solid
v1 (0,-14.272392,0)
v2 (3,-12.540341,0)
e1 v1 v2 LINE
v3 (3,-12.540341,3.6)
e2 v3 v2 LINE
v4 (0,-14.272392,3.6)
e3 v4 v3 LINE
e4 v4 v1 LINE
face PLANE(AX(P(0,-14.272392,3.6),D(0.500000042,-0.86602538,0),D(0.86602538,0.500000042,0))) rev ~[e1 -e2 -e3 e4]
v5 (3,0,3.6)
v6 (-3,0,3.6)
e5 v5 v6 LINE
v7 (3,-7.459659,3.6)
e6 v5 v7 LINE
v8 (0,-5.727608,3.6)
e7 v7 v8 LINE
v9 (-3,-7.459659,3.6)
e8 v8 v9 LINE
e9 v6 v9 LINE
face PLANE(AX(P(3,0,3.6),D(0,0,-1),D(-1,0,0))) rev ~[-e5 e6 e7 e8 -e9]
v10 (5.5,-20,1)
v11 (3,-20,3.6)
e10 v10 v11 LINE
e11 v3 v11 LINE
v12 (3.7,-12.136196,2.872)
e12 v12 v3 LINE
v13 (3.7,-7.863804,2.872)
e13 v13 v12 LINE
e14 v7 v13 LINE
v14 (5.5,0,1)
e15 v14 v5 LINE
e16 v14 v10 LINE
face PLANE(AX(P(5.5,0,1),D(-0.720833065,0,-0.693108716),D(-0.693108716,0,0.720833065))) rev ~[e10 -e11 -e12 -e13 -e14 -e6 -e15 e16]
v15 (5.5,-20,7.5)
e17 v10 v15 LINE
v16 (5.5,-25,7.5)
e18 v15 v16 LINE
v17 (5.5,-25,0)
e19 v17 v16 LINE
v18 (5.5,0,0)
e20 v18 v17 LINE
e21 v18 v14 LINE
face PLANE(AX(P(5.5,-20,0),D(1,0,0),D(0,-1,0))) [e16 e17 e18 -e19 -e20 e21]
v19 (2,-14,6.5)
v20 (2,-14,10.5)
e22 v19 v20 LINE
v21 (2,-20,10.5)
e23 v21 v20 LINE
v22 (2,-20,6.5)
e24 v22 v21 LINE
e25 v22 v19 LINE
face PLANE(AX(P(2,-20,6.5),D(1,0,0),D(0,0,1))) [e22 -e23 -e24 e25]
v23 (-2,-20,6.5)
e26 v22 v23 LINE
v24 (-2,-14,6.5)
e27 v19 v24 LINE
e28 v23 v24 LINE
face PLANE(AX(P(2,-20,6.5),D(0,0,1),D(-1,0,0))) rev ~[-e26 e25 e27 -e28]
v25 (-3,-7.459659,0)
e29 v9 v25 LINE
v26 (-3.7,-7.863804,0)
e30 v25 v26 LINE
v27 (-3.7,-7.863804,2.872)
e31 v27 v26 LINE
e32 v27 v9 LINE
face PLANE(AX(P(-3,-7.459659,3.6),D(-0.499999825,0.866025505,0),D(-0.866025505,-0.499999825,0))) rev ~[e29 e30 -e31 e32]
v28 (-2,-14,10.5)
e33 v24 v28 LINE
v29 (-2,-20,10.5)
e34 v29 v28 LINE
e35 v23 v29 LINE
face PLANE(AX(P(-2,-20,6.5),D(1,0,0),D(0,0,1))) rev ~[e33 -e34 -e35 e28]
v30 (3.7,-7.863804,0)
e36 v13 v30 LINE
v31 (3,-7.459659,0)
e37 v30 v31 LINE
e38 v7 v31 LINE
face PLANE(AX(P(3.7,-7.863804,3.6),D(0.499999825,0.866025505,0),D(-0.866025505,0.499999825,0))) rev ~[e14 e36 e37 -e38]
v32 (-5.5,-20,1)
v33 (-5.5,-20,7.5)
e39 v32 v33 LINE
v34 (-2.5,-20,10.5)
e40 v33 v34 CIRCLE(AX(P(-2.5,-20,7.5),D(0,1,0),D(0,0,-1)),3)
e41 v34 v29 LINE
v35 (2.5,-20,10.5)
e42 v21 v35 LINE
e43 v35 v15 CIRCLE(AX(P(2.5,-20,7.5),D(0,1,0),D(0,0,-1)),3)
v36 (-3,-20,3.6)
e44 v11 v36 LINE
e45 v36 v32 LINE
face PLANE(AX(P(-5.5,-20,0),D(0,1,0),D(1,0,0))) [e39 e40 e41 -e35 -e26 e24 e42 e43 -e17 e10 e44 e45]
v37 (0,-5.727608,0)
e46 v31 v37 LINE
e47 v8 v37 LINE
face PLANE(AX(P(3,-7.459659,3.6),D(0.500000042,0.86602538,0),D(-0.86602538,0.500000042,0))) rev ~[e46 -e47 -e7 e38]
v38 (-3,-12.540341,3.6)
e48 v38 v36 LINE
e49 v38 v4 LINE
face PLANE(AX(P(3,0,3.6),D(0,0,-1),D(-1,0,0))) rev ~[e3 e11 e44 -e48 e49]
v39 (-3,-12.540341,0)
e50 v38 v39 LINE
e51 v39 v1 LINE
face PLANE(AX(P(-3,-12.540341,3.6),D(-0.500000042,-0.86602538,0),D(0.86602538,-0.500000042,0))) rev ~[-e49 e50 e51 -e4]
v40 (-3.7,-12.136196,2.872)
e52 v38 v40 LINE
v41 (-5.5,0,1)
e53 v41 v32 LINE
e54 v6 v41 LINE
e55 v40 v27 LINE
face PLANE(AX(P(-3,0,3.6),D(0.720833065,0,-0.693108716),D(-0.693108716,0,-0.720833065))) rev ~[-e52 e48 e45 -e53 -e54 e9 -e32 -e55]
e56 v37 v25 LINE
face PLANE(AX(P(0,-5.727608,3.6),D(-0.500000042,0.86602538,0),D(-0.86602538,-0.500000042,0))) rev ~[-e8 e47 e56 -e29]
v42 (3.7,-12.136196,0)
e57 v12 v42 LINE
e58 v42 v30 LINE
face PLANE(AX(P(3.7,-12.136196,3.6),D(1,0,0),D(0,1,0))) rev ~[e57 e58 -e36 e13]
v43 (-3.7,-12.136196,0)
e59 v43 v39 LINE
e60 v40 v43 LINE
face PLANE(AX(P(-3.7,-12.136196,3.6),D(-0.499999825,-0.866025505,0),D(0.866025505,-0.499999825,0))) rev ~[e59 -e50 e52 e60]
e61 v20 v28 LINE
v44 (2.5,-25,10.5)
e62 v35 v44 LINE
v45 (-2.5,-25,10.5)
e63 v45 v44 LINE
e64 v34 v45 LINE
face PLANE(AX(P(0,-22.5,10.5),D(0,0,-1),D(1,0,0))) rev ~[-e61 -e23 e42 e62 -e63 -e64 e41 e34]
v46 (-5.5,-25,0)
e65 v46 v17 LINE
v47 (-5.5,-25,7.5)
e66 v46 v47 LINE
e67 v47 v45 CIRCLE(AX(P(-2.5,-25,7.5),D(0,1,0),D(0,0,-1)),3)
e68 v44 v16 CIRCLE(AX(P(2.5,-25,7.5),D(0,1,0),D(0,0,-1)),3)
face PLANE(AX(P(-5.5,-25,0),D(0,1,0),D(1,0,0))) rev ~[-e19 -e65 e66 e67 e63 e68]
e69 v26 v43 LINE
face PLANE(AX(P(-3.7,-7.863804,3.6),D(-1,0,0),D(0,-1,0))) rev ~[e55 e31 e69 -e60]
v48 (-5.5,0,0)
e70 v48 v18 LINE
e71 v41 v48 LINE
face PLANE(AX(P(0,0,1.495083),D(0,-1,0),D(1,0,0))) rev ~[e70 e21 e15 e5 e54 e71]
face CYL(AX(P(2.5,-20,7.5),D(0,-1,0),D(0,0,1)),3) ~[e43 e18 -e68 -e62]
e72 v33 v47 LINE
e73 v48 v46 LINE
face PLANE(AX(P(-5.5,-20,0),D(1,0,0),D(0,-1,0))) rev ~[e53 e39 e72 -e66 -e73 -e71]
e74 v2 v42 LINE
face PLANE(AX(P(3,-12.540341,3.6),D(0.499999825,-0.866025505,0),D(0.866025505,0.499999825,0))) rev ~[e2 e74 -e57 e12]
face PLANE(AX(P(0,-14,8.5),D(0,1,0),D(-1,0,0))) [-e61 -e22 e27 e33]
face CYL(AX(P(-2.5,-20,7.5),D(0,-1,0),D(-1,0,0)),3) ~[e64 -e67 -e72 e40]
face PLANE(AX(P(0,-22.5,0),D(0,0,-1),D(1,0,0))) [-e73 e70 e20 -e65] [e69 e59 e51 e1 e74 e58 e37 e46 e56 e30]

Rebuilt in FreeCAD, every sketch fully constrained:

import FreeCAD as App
import Part
import Sketcher

V = App.Vector
Q = App.Units.Quantity


def edges_at(feature, points):
    """Names of the edges that pass closest to the given points."""
    edges = feature.Shape.Edges
    near = lambda p: min(range(len(edges)), key=lambda i: edges[i].distToShape(Part.Vertex(*p))[0])
    return sorted({f"Edge{near(p) + 1}" for p in points})

doc = App.newDocument("Part")
params = doc.addObject("Spreadsheet::Sheet", "Params")
for row, (alias, value) in enumerate([
    ("sketch1_width", "11 mm"),
    ("sketch1_width2", "6 mm"),
    ("sketch1_height", "1 mm"),
    ("pad1_length", "20 mm"),
    ("sketch3_width", "11 mm"),
    ("sketch3_height", "5 mm"),
    ("pad2_length", "10.5 mm"),
    ("sketch4_width", "4 mm"),
    ("pad3_length", "6 mm"),
    ("fillet_radius", "3 mm"),
], start=1):
    params.set(f"A{row}", alias)
    params.set(f"B{row}", "=" + value)
    params.setAlias(f"B{row}", alias)

body = doc.addObject("PartDesign::Body", "Body")

# Sketch on XZ plane
sketch1 = body.newObject("Sketcher::SketchObject", "Sketch")
sketch1.AttachmentSupport = (doc.getObject("XZ_Plane"), [""])
sketch1.MapMode = "FlatFace"
sketch1.addGeometry([
    Part.LineSegment(V(-5.5, 0, 0), V(5.5, 0, 0)),  # 0
    Part.LineSegment(V(5.5, 0, 0), V(5.5, 1, 0)),  # 1
    Part.LineSegment(V(5.5, 1, 0), V(3, 3.6, 0)),  # 2
    Part.LineSegment(V(3, 3.6, 0), V(-3, 3.6, 0)),  # 3
    Part.LineSegment(V(-3, 3.6, 0), V(-5.5, 1, 0)),  # 4
    Part.LineSegment(V(-5.5, 1, 0), V(-5.5, 0, 0)),  # 5
], False)
sketch1.addConstraint([
    Sketcher.Constraint("Coincident", 0, 2, 1, 1),
    Sketcher.Constraint("Coincident", 1, 2, 2, 1),
    Sketcher.Constraint("Coincident", 2, 2, 3, 1),
    Sketcher.Constraint("Coincident", 3, 2, 4, 1),
    Sketcher.Constraint("Coincident", 4, 2, 5, 1),
    Sketcher.Constraint("Coincident", 5, 2, 0, 1),
    Sketcher.Constraint("Horizontal", 0),
    Sketcher.Constraint("Vertical", 1),
    Sketcher.Constraint("Horizontal", 3),
    Sketcher.Constraint("Vertical", 5),
    Sketcher.Constraint("Symmetric", 0, 2, 5, 2, -1, 1),
    Sketcher.Constraint("Horizontal", 1, 2, 4, 2),
    Sketcher.Constraint("Equal", 2, 4),
    Sketcher.Constraint("DistanceX", 0, 1, 0, 2, 11.0),
    Sketcher.Constraint("DistanceX", 3, 2, 3, 1, 6.0),
    Sketcher.Constraint("DistanceY", 1, 1, 1, 2, 1.0),
    Sketcher.Constraint("DistanceY", -1, 1, 2, 2, 3.6),
])
sketch1.setExpression("Constraints[13]", "Params.sketch1_width")
sketch1.setExpression("Constraints[14]", "Params.sketch1_width2")
sketch1.setExpression("Constraints[15]", "Params.sketch1_height")
pad1 = body.newObject("PartDesign::Pad", "Pad")
pad1.Profile = sketch1
pad1.setExpression("Length", "Params.pad1_length")

# Sketch on XY plane
sketch2 = body.newObject("Sketcher::SketchObject", "Sketch001")
sketch2.AttachmentSupport = (doc.getObject("XY_Plane"), [""])
sketch2.MapMode = "FlatFace"
sketch2.AttachmentOffset = App.Placement(V(0, 0, 3.6), App.Rotation())
sketch2.addGeometry([
    Part.LineSegment(V(3, -7.5, 0), V(0, -5.7, 0)),  # 0
    Part.LineSegment(V(0, -5.7, 0), V(-3, -7.5, 0)),  # 1
    Part.LineSegment(V(-3, -7.5, 0), V(-3.7, -7.9, 0)),  # 2
    Part.LineSegment(V(-3.7, -7.9, 0), V(-3.7, -12.1, 0)),  # 3
    Part.LineSegment(V(-3.7, -12.1, 0), V(-3, -12.5, 0)),  # 4
    Part.LineSegment(V(-3, -12.5, 0), V(0, -14.3, 0)),  # 5
    Part.LineSegment(V(0, -14.3, 0), V(3, -12.5, 0)),  # 6
    Part.LineSegment(V(3, -12.5, 0), V(3.7, -12.1, 0)),  # 7
    Part.LineSegment(V(3.7, -12.1, 0), V(3.7, -7.9, 0)),  # 8
    Part.LineSegment(V(3.7, -7.9, 0), V(3, -7.5, 0)),  # 9
], False)
sketch2.addConstraint([
    Sketcher.Constraint("Coincident", 0, 2, 1, 1),
    Sketcher.Constraint("Coincident", 1, 2, 2, 1),
    Sketcher.Constraint("Coincident", 2, 2, 3, 1),
    Sketcher.Constraint("Coincident", 3, 2, 4, 1),
    Sketcher.Constraint("Coincident", 4, 2, 5, 1),
    Sketcher.Constraint("Coincident", 5, 2, 6, 1),
    Sketcher.Constraint("Coincident", 6, 2, 7, 1),
    Sketcher.Constraint("Coincident", 7, 2, 8, 1),
    Sketcher.Constraint("Coincident", 8, 2, 9, 1),
    Sketcher.Constraint("Coincident", 9, 2, 0, 1),
    Sketcher.Constraint("Vertical", 3),
    Sketcher.Constraint("Vertical", 8),
    Sketcher.Constraint("Symmetric", 4, 2, 6, 2, -2),
    Sketcher.Constraint("Symmetric", 3, 2, 7, 2, -2),
    Sketcher.Constraint("Symmetric", 1, 2, 9, 2, -2),
    Sketcher.Constraint("PointOnObject", 0, 2, -2),
    Sketcher.Constraint("PointOnObject", 5, 2, -2),
    Sketcher.Constraint("Parallel", 1, 2),
    Sketcher.Constraint("Parallel", 0, 4),
    Sketcher.Constraint("Parallel", 4, 5),
    Sketcher.Constraint("Parallel", 5, 9),
    Sketcher.Constraint("Vertical", 1, 2, 4, 2),
    Sketcher.Constraint("Angle", 0, Q("149.999997 deg")),
    Sketcher.Constraint("DistanceX", 1, 2, -1, 1, 3.0),
    Sketcher.Constraint("DistanceX", 2, 2, -1, 1, 3.7),
    Sketcher.Constraint("DistanceY", 3, 2, 3, 1, 4.272392),
    Sketcher.Constraint("DistanceY", 1, 2, -1, 1, 7.459659),
])
pocket1 = body.newObject("PartDesign::Pocket", "Pocket")
pocket1.Profile = sketch2
pocket1.Type = "ThroughAll"

# Sketch on XY plane
sketch3 = body.newObject("Sketcher::SketchObject", "Sketch002")
sketch3.AttachmentSupport = (doc.getObject("XY_Plane"), [""])
sketch3.MapMode = "FlatFace"
sketch3.addGeometry([
    Part.LineSegment(V(-6, -25, 0), V(-6, -20, 0)),
    Part.LineSegment(V(-6, -20, 0), V(6, -20, 0)),
    Part.LineSegment(V(6, -20, 0), V(6, -25, 0)),
    Part.LineSegment(V(6, -25, 0), V(-6, -25, 0)),
], False)
sketch3.addConstraint([
    Sketcher.Constraint("Coincident", 0, 2, 1, 1),
    Sketcher.Constraint("Coincident", 1, 2, 2, 1),
    Sketcher.Constraint("Coincident", 2, 2, 3, 1),
    Sketcher.Constraint("Coincident", 3, 2, 0, 1),
    Sketcher.Constraint("Vertical", 0),
    Sketcher.Constraint("Horizontal", 1),
    Sketcher.Constraint("Vertical", 2),
    Sketcher.Constraint("Horizontal", 3),
    Sketcher.Constraint("DistanceX", 1, 1, 1, 2, 11.0),
    Sketcher.Constraint("DistanceY", 0, 1, 0, 2, 5.0),
    Sketcher.Constraint("DistanceY", 0, 2, -1, 1, 20.0),
    Sketcher.Constraint("DistanceX", 0, 2, -1, 1, 5.5),
])
sketch3.setExpression("Constraints[8]", "Params.sketch3_width")
sketch3.setExpression("Constraints[9]", "Params.sketch3_height")
pad2 = body.newObject("PartDesign::Pad", "Pad001")
pad2.Profile = sketch3
pad2.setExpression("Length", "Params.pad2_length")

# Sketch on XZ plane
sketch4 = body.newObject("Sketcher::SketchObject", "Sketch003")
sketch4.AttachmentSupport = (doc.getObject("XZ_Plane"), [""])
sketch4.MapMode = "FlatFace"
sketch4.AttachmentOffset = App.Placement(V(0, 0, 20), App.Rotation())
sketch4.addGeometry([
    Part.LineSegment(V(2, 10.5, 0), V(2, 6.5, 0)),
    Part.LineSegment(V(2, 6.5, 0), V(-2, 6.5, 0)),
    Part.LineSegment(V(-2, 6.5, 0), V(-2, 10.5, 0)),
    Part.LineSegment(V(-2, 10.5, 0), V(2, 10.5, 0)),
], False)
sketch4.addConstraint([
    Sketcher.Constraint("Coincident", 0, 2, 1, 1),
    Sketcher.Constraint("Coincident", 1, 2, 2, 1),
    Sketcher.Constraint("Coincident", 2, 2, 3, 1),
    Sketcher.Constraint("Coincident", 3, 2, 0, 1),
    Sketcher.Constraint("Vertical", 0),
    Sketcher.Constraint("Horizontal", 1),
    Sketcher.Constraint("Vertical", 2),
    Sketcher.Constraint("Horizontal", 3),
    Sketcher.Constraint("Equal", 3, 0),
    Sketcher.Constraint("DistanceX", 1, 2, 1, 1, 4.0),
    Sketcher.Constraint("DistanceX", -1, 1, 0, 2, 2.0),
    Sketcher.Constraint("DistanceY", -1, 1, 0, 2, 6.5),
])
sketch4.setExpression("Constraints[9]", "Params.sketch4_width")
pad3 = body.newObject("PartDesign::Pad", "Pad002")
pad3.Profile = sketch4
pad3.setExpression("Length", "Params.pad3_length")
pad3.Reversed = True
doc.recompute()

fillet = body.newObject("PartDesign::Fillet", "Fillet")
fillet.Base = (pad3, edges_at(pad3, [(-5.5, -22.5, 10.5), (5.5, -22.5, 10.5)]))
fillet.setExpression("Radius", "Params.fillet_radius")

doc.recompute()
